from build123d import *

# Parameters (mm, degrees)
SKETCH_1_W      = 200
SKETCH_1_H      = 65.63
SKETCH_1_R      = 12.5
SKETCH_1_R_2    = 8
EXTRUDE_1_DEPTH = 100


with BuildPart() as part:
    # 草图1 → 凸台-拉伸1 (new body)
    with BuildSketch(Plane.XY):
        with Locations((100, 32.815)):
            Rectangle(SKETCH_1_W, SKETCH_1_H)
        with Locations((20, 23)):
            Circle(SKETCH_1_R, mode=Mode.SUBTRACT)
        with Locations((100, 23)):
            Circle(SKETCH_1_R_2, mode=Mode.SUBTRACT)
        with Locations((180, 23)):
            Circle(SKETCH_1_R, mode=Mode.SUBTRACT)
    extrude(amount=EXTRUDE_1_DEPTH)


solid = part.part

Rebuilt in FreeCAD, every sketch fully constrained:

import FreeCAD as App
import Part
import Sketcher

V = App.Vector
Q = App.Units.Quantity


def add_polygon(sketch, points):
    """Adds a closed chain of lines whose ends are joined by coincident constraints."""
    first, n = sketch.GeometryCount, len(points)
    for a, b in zip(points, points[1:] + points[:1]):
        sketch.addGeometry(Part.LineSegment(App.Vector(*a, 0), App.Vector(*b, 0)), False)
    for i in range(n):
        sketch.addConstraint(Sketcher.Constraint("Coincident", first + i, 2, first + (i + 1) % n, 1))

doc = App.newDocument("Part")
body = doc.addObject("PartDesign::Body", "Body")

sketch1 = body.newObject("Sketcher::SketchObject", "Sketch")
sketch1.AttachmentSupport = (doc.getObject("XY_Plane"), [""])
sketch1.MapMode = "FlatFace"
add_polygon(sketch1, [(0, 66), (0, 0), (200, 0), (200, 66)])
sketch1.addGeometry(Part.Circle(V(20, 23, 0), V(0, 0, 1), 12), False)
sketch1.addGeometry(Part.Circle(V(100, 23, 0), V(0, 0, 1), 8), False)
sketch1.addGeometry(Part.Circle(V(180, 23, 0), V(0, 0, 1), 12), False)
sketch1.addConstraint([
    Sketcher.Constraint("Vertical", 0),
    Sketcher.Constraint("Horizontal", 1),
    Sketcher.Constraint("Vertical", 2),
    Sketcher.Constraint("Horizontal", 3),
    Sketcher.Constraint("Coincident", 0, 2, -1, 1),
    Sketcher.Constraint("Equal", 4, 6),
    Sketcher.Constraint("Horizontal", 4, 3, 5, 3),
    Sketcher.Constraint("Horizontal", 5, 3, 6, 3),
    Sketcher.Constraint("Diameter", 4, Q("25 mm")),
    Sketcher.Constraint("Diameter", 5, Q("16 mm")),
    Sketcher.Constraint("DistanceX", 1, 1, 1, 2, Q("200 mm")),
    Sketcher.Constraint("DistanceX", -1, 1, 4, 3, Q("20 mm")),
    Sketcher.Constraint("DistanceY", -1, 1, 4, 3, Q("23 mm")),
    Sketcher.Constraint("DistanceX", -1, 1, 5, 3, Q("100 mm")),
    Sketcher.Constraint("DistanceX", -1, 1, 6, 3, Q("180 mm")),
    Sketcher.Constraint("DistanceY", 0, 2, 0, 1, Q("65.63 mm")),
])
pad1 = body.newObject("PartDesign::Pad", "Pad")
pad1.Profile = sketch1
pad1.Length = 100

doc.recompute()
